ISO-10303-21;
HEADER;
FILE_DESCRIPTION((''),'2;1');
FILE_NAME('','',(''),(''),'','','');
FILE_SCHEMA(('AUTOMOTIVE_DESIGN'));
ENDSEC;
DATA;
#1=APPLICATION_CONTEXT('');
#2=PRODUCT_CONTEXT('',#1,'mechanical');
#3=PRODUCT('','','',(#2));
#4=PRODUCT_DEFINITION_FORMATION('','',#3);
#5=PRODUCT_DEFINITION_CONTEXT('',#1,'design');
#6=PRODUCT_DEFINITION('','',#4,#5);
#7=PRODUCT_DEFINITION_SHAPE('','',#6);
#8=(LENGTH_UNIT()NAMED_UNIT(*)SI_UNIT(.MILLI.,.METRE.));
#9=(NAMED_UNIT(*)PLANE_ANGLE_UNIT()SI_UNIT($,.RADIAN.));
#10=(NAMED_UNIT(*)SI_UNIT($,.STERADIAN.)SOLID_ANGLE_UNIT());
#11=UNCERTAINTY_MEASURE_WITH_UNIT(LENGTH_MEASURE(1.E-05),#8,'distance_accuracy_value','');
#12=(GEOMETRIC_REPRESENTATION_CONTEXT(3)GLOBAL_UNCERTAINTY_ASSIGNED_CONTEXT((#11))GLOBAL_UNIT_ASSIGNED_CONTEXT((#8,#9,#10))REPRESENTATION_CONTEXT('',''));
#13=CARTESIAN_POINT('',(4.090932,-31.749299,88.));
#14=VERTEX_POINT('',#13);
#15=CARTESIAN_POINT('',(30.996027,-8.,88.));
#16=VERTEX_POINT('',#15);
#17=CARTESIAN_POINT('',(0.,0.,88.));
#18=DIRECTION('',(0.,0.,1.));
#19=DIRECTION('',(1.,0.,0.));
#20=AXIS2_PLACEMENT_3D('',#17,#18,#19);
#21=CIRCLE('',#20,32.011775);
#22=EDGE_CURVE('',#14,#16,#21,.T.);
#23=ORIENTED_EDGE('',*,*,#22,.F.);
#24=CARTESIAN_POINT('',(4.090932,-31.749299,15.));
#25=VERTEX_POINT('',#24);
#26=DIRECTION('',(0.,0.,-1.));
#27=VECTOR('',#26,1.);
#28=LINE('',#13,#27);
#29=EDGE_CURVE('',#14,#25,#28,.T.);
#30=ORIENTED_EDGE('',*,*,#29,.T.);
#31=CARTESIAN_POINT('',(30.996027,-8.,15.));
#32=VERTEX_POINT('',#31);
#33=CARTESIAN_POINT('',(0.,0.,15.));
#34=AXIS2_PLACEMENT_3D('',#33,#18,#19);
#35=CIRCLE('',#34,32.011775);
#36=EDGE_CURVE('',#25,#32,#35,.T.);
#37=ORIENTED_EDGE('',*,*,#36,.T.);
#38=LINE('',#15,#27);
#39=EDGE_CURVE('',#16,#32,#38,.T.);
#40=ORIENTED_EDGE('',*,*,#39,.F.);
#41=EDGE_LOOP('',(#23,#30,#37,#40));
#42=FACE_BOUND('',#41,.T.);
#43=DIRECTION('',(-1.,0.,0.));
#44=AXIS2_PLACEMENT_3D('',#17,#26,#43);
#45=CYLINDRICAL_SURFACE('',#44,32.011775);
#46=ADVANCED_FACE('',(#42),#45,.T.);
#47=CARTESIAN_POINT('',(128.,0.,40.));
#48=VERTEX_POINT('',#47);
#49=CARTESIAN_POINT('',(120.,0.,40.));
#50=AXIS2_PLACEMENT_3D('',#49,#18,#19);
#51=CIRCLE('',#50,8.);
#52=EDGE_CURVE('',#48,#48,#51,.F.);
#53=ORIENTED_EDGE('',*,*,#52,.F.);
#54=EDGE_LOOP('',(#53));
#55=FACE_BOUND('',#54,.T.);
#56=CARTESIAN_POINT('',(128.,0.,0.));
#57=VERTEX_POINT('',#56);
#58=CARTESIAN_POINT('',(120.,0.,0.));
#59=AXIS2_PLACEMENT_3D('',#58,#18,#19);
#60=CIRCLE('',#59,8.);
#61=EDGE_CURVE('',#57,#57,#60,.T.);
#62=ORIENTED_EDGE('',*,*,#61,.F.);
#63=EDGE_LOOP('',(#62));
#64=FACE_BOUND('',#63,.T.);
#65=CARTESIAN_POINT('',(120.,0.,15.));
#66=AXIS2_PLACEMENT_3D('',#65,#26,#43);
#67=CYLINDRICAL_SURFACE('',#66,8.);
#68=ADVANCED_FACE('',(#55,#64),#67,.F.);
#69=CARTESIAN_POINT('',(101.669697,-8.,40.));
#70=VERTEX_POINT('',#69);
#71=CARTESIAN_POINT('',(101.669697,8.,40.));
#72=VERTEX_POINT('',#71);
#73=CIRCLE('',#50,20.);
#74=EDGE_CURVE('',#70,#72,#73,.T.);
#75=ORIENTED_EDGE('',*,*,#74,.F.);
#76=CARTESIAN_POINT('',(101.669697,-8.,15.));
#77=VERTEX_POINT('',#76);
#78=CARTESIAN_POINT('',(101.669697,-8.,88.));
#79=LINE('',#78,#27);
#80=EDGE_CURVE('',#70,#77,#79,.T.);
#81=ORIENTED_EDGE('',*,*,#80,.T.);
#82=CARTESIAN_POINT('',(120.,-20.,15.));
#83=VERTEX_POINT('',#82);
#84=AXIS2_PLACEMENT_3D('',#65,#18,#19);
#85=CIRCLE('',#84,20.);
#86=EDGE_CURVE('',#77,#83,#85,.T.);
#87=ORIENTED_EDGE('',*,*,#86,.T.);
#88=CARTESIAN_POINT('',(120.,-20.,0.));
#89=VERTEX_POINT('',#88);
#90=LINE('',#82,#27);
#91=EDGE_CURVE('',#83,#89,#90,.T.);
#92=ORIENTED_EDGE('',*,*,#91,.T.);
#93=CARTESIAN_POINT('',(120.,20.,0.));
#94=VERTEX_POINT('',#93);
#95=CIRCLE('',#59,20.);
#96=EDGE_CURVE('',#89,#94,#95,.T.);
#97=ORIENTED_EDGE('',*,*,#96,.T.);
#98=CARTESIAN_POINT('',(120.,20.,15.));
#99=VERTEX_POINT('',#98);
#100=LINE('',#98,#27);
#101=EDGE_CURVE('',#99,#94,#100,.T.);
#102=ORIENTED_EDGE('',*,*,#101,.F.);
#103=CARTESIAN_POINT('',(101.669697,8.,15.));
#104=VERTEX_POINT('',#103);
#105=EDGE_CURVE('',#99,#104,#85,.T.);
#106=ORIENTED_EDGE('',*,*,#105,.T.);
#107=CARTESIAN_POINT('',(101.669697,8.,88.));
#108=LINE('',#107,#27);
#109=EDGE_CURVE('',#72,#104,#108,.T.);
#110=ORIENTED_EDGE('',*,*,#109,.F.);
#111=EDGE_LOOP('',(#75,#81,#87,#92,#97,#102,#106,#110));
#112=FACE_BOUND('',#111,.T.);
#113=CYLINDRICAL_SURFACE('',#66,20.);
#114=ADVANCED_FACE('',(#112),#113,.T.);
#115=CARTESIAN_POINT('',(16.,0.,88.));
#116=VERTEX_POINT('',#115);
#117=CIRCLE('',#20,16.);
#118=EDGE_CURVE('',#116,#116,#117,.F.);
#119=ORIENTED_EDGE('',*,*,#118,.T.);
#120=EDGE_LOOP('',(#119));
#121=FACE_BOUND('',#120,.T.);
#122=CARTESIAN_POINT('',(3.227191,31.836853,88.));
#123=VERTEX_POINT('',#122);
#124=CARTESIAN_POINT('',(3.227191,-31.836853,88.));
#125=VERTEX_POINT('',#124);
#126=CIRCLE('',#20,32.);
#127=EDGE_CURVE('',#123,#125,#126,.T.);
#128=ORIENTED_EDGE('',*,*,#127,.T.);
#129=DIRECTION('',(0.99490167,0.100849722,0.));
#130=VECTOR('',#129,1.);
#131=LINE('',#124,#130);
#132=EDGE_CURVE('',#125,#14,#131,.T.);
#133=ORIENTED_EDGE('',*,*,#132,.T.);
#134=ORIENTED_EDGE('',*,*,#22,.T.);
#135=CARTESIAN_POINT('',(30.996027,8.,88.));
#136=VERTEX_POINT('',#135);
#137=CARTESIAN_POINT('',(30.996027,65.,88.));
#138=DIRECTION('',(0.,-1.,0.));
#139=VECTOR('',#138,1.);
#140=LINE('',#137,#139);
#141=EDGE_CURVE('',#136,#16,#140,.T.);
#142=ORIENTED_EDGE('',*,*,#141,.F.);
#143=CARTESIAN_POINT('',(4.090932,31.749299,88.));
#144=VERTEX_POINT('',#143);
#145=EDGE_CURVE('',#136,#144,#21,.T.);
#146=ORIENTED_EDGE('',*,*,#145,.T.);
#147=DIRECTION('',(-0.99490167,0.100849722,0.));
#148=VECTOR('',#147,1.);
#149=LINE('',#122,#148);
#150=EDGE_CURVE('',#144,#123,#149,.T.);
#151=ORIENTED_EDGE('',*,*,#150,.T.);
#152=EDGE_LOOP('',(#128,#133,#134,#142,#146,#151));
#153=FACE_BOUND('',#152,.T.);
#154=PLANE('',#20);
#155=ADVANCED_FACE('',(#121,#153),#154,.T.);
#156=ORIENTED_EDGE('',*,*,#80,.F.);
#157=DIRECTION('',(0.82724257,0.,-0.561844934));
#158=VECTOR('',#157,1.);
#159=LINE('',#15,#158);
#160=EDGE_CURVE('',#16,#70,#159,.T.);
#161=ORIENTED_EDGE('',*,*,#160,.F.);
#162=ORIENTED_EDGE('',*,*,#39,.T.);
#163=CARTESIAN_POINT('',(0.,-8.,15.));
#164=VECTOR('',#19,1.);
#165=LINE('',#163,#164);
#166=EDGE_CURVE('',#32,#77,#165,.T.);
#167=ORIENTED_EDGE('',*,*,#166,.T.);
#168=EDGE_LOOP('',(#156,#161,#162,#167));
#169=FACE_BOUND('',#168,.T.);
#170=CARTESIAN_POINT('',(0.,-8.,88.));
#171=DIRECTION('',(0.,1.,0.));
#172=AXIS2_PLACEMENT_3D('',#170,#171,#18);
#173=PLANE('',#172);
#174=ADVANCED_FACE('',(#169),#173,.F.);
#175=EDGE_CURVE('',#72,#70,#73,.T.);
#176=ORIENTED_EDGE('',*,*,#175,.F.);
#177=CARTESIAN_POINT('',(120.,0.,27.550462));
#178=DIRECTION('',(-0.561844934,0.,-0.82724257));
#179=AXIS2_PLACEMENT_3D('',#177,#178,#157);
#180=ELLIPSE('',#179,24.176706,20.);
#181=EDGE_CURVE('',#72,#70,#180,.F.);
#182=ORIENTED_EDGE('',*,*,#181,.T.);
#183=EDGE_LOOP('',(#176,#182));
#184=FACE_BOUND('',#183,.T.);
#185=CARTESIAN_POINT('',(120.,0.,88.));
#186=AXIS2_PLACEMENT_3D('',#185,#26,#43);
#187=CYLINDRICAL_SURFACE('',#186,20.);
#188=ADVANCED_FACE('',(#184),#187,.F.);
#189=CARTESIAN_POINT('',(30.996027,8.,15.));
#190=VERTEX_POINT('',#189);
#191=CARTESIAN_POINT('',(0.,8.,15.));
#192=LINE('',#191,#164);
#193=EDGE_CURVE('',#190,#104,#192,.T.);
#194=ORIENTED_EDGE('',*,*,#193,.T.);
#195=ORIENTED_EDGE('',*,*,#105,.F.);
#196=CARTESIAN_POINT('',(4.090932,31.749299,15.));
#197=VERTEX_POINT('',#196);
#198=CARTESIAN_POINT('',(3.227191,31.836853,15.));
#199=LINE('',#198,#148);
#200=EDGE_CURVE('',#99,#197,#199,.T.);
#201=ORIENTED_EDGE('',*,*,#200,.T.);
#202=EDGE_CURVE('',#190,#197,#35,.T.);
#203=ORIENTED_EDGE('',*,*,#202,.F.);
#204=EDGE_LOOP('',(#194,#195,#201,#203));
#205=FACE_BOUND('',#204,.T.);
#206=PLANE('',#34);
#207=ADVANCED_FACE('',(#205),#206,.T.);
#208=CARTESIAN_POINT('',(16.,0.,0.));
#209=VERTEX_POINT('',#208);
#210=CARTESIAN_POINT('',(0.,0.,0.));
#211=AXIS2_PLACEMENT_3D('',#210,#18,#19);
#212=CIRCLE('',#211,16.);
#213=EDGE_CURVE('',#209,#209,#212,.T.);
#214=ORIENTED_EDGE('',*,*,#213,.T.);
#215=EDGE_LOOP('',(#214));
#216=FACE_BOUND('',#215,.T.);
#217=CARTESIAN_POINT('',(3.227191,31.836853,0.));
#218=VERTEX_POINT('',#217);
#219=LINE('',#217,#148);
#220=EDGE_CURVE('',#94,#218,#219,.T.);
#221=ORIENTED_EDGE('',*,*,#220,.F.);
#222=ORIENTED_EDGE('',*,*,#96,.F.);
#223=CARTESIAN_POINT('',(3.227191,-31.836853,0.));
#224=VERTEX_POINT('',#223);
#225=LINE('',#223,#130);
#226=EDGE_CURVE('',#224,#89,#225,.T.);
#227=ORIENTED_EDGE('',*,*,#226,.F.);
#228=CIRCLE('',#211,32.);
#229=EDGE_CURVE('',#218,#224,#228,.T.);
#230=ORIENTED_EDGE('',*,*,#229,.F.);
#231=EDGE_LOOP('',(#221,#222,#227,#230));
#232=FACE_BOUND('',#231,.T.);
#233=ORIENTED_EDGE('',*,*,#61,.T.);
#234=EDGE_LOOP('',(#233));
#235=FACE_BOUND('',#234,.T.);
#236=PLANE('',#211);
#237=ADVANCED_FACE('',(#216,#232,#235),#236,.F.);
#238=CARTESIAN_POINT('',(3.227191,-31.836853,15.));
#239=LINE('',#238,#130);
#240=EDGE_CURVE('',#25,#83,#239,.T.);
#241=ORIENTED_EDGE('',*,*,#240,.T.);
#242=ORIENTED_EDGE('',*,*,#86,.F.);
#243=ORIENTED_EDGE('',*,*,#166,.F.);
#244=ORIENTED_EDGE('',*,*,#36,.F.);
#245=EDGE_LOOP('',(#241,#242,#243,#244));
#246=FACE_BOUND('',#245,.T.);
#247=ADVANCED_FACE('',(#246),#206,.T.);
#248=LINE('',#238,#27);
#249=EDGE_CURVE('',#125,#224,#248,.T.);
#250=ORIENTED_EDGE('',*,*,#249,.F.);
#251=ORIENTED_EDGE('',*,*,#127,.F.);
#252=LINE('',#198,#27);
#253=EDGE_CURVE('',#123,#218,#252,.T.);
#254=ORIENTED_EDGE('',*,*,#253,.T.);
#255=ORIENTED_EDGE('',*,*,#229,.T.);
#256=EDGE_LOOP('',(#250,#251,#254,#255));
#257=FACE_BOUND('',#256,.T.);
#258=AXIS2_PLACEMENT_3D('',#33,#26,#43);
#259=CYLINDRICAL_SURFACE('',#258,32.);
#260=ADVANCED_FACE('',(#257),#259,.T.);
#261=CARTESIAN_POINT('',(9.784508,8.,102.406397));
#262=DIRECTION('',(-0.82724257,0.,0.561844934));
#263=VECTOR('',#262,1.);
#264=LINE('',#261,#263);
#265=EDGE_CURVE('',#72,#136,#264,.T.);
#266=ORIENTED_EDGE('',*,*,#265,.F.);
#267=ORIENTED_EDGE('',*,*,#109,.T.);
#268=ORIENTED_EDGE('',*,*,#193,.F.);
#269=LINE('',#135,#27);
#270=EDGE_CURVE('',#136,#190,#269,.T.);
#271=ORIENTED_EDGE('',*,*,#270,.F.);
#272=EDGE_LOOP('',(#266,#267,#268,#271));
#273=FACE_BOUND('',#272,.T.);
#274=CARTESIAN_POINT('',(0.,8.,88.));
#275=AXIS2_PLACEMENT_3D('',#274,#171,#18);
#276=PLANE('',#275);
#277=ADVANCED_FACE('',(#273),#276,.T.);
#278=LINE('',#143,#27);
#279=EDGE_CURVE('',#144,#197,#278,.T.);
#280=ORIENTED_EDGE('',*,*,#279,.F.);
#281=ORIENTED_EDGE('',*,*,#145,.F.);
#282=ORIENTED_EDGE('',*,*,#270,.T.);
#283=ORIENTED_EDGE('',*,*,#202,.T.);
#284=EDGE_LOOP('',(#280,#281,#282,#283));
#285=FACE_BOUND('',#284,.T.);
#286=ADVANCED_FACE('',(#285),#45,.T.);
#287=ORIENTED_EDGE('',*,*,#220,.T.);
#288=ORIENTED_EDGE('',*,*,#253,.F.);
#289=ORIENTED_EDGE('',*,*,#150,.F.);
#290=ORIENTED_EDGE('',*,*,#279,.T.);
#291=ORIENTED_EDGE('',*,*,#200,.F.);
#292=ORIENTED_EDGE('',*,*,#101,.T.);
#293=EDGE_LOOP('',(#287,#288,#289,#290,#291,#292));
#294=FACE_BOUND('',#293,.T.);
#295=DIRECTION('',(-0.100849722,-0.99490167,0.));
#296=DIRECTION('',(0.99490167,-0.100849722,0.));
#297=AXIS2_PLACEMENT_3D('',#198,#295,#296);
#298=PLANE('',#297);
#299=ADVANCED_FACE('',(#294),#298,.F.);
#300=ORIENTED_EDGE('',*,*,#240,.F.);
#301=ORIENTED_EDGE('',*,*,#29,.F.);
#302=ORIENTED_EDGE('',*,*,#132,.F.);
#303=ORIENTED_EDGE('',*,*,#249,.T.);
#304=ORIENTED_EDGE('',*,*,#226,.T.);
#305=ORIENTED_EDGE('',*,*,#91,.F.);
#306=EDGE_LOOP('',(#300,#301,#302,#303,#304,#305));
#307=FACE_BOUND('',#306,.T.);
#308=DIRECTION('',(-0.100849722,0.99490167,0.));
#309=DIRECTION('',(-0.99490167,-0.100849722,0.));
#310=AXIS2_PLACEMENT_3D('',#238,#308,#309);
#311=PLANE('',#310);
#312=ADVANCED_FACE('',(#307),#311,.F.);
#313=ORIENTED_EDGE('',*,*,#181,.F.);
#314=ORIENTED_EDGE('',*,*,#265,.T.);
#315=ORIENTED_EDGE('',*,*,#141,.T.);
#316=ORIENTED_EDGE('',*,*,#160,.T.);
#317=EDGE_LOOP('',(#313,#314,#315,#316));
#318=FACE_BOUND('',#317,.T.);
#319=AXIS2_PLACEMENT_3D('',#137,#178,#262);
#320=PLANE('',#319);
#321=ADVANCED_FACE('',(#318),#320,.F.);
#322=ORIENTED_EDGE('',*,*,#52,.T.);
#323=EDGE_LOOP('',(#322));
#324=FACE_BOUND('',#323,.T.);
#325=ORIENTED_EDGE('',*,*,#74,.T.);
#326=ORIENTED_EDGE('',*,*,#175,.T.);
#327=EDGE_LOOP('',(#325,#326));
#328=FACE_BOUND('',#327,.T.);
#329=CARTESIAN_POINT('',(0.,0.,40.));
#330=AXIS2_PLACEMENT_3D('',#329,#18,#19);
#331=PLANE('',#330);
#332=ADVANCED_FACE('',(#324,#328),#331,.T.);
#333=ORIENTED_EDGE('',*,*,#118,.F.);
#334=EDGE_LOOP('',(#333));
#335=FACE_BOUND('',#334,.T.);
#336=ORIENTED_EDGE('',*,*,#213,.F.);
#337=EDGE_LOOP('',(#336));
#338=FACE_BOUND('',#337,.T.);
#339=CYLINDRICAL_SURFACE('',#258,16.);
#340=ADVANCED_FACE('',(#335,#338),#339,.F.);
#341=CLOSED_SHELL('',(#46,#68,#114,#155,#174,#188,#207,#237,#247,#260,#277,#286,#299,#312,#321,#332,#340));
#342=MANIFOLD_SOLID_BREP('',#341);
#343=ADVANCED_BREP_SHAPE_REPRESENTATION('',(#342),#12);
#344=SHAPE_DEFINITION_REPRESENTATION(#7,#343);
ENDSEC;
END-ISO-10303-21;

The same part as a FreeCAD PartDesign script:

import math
import FreeCAD as App
import Part
import Sketcher

V = App.Vector

doc = App.newDocument("Part")
body = doc.addObject("PartDesign::Body", "Body")

# Sketch on XY plane
sketch1 = body.newObject("Sketcher::SketchObject", "Sketch")
sketch1.AttachmentSupport = (doc.getObject("XY_Plane"), [""])
sketch1.MapMode = "FlatFace"
sketch1.addGeometry(Part.LineSegment(V(3.227191, -31.836853, 0), V(120, -20, 0)), False)
sketch1.addGeometry(Part.ArcOfCircle(Part.Circle(V(120, 0, 0), V(0, 0, 1), 20), math.radians(-90), math.radians(90)), False)
sketch1.addGeometry(Part.LineSegment(V(120, 20, 0), V(3.227191, 31.836853, 0)), False)
sketch1.addGeometry(Part.ArcOfCircle(Part.Circle(V(0, 0, 0), V(0, 0, 1), 32), math.radians(84.211897), math.radians(275.788103)), False)
sketch1.addGeometry(Part.Circle(V(120, 0, 0), V(0, 0, 1), 8), False)
sketch1.addGeometry(Part.Circle(V(0, 0, 0), V(0, 0, 1), 16), False)
sketch1.addConstraint(Sketcher.Constraint("Coincident", 0, 2, 1, 1))
sketch1.addConstraint(Sketcher.Constraint("Coincident", 1, 2, 2, 1))
sketch1.addConstraint(Sketcher.Constraint("Tangent", 2, 2, 3, 1))
sketch1.addConstraint(Sketcher.Constraint("Tangent", 3, 2, 0, 1))
sketch1.addConstraint(Sketcher.Constraint("Coincident", 3, 3, -1, 1))
sketch1.addConstraint(Sketcher.Constraint("Coincident", 5, 3, -1, 1))
sketch1.addConstraint(Sketcher.Constraint("Coincident", 4, 3, 1, 3))
sketch1.addConstraint(Sketcher.Constraint("Symmetric", 0, 2, 1, 2, -1))
sketch1.addConstraint(Sketcher.Constraint("Vertical", 4, 3, 0, 2))
sketch1.addConstraint(Sketcher.Constraint("Diameter", 4, 16.0))
sketch1.addConstraint(Sketcher.Constraint("Diameter", 5, 32.0))
sketch1.addConstraint(Sketcher.Constraint("Radius", 1, 20.0))
sketch1.addConstraint(Sketcher.Constraint("Radius", 3, 32.0))
sketch1.addConstraint(Sketcher.Constraint("DistanceX", -1, 1, 1, 3, 120.0))
pad1 = body.newObject("PartDesign::Pad", "Pad")
pad1.Profile = sketch1
pad1.Length = 15

# Sketch on XY plane
sketch2 = body.newObject("Sketcher::SketchObject", "Sketch001")
sketch2.AttachmentSupport = (doc.getObject("XY_Plane"), [""])
sketch2.MapMode = "FlatFace"
sketch2.AttachmentOffset = App.Placement(V(0, 0, 15), App.Rotation())
sketch2.addGeometry(Part.ArcOfCircle(Part.Circle(V(0, 0, 0), V(0, 0, 1), 32.011775), math.radians(-82.65783), math.radians(0)), False)
sketch2.addGeometry(Part.ArcOfCircle(Part.Circle(V(0, 0, 0), V(0, 0, 1), 32.011775), math.radians(0), math.radians(82.65783)), False)
sketch2.addGeometry(Part.LineSegment(V(4.090932, 31.749299, 0), V(3.227191, 31.836853, 0)), False)
sketch2.addGeometry(Part.ArcOfCircle(Part.Circle(V(0, 0, 0), V(0, 0, 1), 32), math.radians(84.211897), math.radians(275.788103)), False)
sketch2.addGeometry(Part.LineSegment(V(3.227191, -31.836853, 0), V(4.090932, -31.749299, 0)), False)
sketch2.addGeometry(Part.Circle(V(0, 0, 0), V(0, 0, 1), 16), False)
sketch2.addConstraint(Sketcher.Constraint("Tangent", 0, 2, 1, 1))
sketch2.addConstraint(Sketcher.Constraint("Coincident", 1, 2, 2, 1))
sketch2.addConstraint(Sketcher.Constraint("Tangent", 2, 2, 3, 1))
sketch2.addConstraint(Sketcher.Constraint("Tangent", 3, 2, 4, 1))
sketch2.addConstraint(Sketcher.Constraint("Coincident", 4, 2, 0, 1))
sketch2.addConstraint(Sketcher.Constraint("Coincident", 0, 3, -1, 1))
sketch2.addConstraint(Sketcher.Constraint("Coincident", 3, 3, -1, 1))
sketch2.addConstraint(Sketcher.Constraint("Coincident", 5, 3, -1, 1))
sketch2.addConstraint(Sketcher.Constraint("Equal", 0, 1))
sketch2.addConstraint(Sketcher.Constraint("PointOnObject", 0, 2, -1))
sketch2.addConstraint(Sketcher.Constraint("Vertical", 2, 2, 3, 2))
sketch2.addConstraint(Sketcher.Constraint("Diameter", 5, 32.0))
sketch2.addConstraint(Sketcher.Constraint("Radius", 3, 32.0))
sketch2.addConstraint(Sketcher.Constraint("Radius", 0, 32.011775))
sketch2.addConstraint(Sketcher.Constraint("DistanceY", -1, 1, 1, 2, 31.749299))
pad2 = body.newObject("PartDesign::Pad", "Pad001")
pad2.Profile = sketch2
pad2.Length = 73

# Sketch on XY plane
sketch3 = body.newObject("Sketcher::SketchObject", "Sketch002")
sketch3.AttachmentSupport = (doc.getObject("XY_Plane"), [""])
sketch3.MapMode = "FlatFace"
sketch3.AttachmentOffset = App.Placement(V(0, 0, 15), App.Rotation())
sketch3.addGeometry(Part.ArcOfCircle(Part.Circle(V(120, 0, 0), V(0, 0, 1), 20), math.radians(-90), math.radians(0)), False)
sketch3.addGeometry(Part.ArcOfCircle(Part.Circle(V(120, 0, 0), V(0, 0, 1), 20), math.radians(0), math.radians(90)), False)
sketch3.addGeometry(Part.ArcOfCircle(Part.Circle(V(120, 0, 0), V(0, 0, 1), 20), math.radians(90), math.radians(270)), False)
sketch3.addGeometry(Part.Circle(V(120, 0, 0), V(0, 0, 1), 8), False)
sketch3.addConstraint(Sketcher.Constraint("Tangent", 0, 2, 1, 1))
sketch3.addConstraint(Sketcher.Constraint("Tangent", 1, 2, 2, 1))
sketch3.addConstraint(Sketcher.Constraint("Tangent", 2, 2, 0, 1))
sketch3.addConstraint(Sketcher.Constraint("Coincident", 3, 3, 0, 3))
sketch3.addConstraint(Sketcher.Constraint("Symmetric", 1, 2, 2, 2, -1))
sketch3.addConstraint(Sketcher.Constraint("PointOnObject", 0, 2, -1))
sketch3.addConstraint(Sketcher.Constraint("Vertical", 3, 3, 1, 2))
sketch3.addConstraint(Sketcher.Constraint("Diameter", 3, 16.0))
sketch3.addConstraint(Sketcher.Constraint("Radius", 0, 20.0))
sketch3.addConstraint(Sketcher.Constraint("DistanceX", -1, 1, 0, 3, 120.0))
pad3 = body.newObject("PartDesign::Pad", "Pad002")
pad3.Profile = sketch3
pad3.Length = 25

# Sketch on XY plane
sketch4 = body.newObject("Sketcher::SketchObject", "Sketch003")
sketch4.AttachmentSupport = (doc.getObject("XY_Plane"), [""])
sketch4.MapMode = "FlatFace"
sketch4.AttachmentOffset = App.Placement(V(0, 0, 15), App.Rotation())
sketch4.addGeometry(Part.ArcOfCircle(Part.Circle(V(0, 0, 0), V(0, 0, 1), 32.011775), math.radians(0), math.radians(14.472071)), False)
sketch4.addGeometry(Part.ArcOfCircle(Part.Circle(V(0, 0, 0), V(0, 0, 1), 32.011775), math.radians(-14.472071), math.radians(0)), False)
sketch4.addGeometry(Part.LineSegment(V(30.996027, -8, 0), V(101.669697, -8, 0)), False)
sketch4.addGeometry(Part.ArcOfCircle(Part.Circle(V(120, 0, 0), V(0, 0, 1), 20), math.radians(180), math.radians(203.578178)), False)
sketch4.addGeometry(Part.ArcOfCircle(Part.Circle(V(120, 0, 0), V(0, 0, 1), 20), math.radians(156.421822), math.radians(180)), False)
sketch4.addGeometry(Part.LineSegment(V(101.669697, 8, 0), V(30.996027, 8, 0)), False)
sketch4.addConstraint(Sketcher.Constraint("Tangent", 0, 1, 1, 2))
sketch4.addConstraint(Sketcher.Constraint("Coincident", 1, 1, 2, 1))
sketch4.addConstraint(Sketcher.Constraint("Coincident", 2, 2, 3, 2))
sketch4.addConstraint(Sketcher.Constraint("Tangent", 3, 1, 4, 2))
sketch4.addConstraint(Sketcher.Constraint("Coincident", 4, 1, 5, 1))
sketch4.addConstraint(Sketcher.Constraint("Coincident", 5, 2, 0, 2))
sketch4.addConstraint(Sketcher.Constraint("Horizontal", 2))
sketch4.addConstraint(Sketcher.Constraint("Horizontal", 5))
sketch4.addConstraint(Sketcher.Constraint("Coincident", 0, 3, -1, 1))
sketch4.addConstraint(Sketcher.Constraint("Equal", 0, 1))
sketch4.addConstraint(Sketcher.Constraint("Equal", 3, 4))
sketch4.addConstraint(Sketcher.Constraint("Symmetric", 2, 2, 4, 1, -1))
sketch4.addConstraint(Sketcher.Constraint("PointOnObject", 0, 1, -1))
sketch4.addConstraint(Sketcher.Constraint("PointOnObject", 3, 1, -1))
sketch4.addConstraint(Sketcher.Constraint("Radius", 3, 20.0))
sketch4.addConstraint(Sketcher.Constraint("DistanceX", -1, 1, 3, 3, 120.0))
sketch4.addConstraint(Sketcher.Constraint("DistanceY", 1, 1, -1, 1, 8.0))
sketch4.addConstraint(Sketcher.Constraint("Radius", 0, 32.011775))
pad4 = body.newObject("PartDesign::Pad", "Pad003")
pad4.Profile = sketch4
pad4.Length = 73

# Sketch on XZ plane
sketch5 = body.newObject("Sketcher::SketchObject", "Sketch004")
sketch5.AttachmentSupport = (doc.getObject("XZ_Plane"), [""])
sketch5.MapMode = "FlatFace"
sketch5.AttachmentOffset = App.Placement(V(0, 0, 8), App.Rotation())
sketch5.addGeometry(Part.LineSegment(V(30.996027, 88, 0), V(101.669697, 40, 0)), False)
sketch5.addGeometry(Part.LineSegment(V(101.669697, 40, 0), V(101.669697, 88, 0)), False)
sketch5.addGeometry(Part.LineSegment(V(101.669697, 88, 0), V(30.996027, 88, 0)), False)
sketch5.addConstraint(Sketcher.Constraint("Coincident", 0, 2, 1, 1))
sketch5.addConstraint(Sketcher.Constraint("Coincident", 1, 2, 2, 1))
sketch5.addConstraint(Sketcher.Constraint("Coincident", 2, 2, 0, 1))
sketch5.addConstraint(Sketcher.Constraint("Vertical", 1))
sketch5.addConstraint(Sketcher.Constraint("Horizontal", 2))
sketch5.addConstraint(Sketcher.Constraint("DistanceY", 1, 1, 1, 2, 48.0))
sketch5.addConstraint(Sketcher.Constraint("DistanceY", -1, 1, 0, 2, 40.0))
sketch5.addConstraint(Sketcher.Constraint("DistanceX", 2, 2, 2, 1, 70.67367))
sketch5.addConstraint(Sketcher.Constraint("DistanceX", -1, 1, 0, 2, 101.669697))
pocket1 = body.newObject("PartDesign::Pocket", "Pocket")
pocket1.Profile = sketch5
pocket1.Length = 73

doc.recompute()
